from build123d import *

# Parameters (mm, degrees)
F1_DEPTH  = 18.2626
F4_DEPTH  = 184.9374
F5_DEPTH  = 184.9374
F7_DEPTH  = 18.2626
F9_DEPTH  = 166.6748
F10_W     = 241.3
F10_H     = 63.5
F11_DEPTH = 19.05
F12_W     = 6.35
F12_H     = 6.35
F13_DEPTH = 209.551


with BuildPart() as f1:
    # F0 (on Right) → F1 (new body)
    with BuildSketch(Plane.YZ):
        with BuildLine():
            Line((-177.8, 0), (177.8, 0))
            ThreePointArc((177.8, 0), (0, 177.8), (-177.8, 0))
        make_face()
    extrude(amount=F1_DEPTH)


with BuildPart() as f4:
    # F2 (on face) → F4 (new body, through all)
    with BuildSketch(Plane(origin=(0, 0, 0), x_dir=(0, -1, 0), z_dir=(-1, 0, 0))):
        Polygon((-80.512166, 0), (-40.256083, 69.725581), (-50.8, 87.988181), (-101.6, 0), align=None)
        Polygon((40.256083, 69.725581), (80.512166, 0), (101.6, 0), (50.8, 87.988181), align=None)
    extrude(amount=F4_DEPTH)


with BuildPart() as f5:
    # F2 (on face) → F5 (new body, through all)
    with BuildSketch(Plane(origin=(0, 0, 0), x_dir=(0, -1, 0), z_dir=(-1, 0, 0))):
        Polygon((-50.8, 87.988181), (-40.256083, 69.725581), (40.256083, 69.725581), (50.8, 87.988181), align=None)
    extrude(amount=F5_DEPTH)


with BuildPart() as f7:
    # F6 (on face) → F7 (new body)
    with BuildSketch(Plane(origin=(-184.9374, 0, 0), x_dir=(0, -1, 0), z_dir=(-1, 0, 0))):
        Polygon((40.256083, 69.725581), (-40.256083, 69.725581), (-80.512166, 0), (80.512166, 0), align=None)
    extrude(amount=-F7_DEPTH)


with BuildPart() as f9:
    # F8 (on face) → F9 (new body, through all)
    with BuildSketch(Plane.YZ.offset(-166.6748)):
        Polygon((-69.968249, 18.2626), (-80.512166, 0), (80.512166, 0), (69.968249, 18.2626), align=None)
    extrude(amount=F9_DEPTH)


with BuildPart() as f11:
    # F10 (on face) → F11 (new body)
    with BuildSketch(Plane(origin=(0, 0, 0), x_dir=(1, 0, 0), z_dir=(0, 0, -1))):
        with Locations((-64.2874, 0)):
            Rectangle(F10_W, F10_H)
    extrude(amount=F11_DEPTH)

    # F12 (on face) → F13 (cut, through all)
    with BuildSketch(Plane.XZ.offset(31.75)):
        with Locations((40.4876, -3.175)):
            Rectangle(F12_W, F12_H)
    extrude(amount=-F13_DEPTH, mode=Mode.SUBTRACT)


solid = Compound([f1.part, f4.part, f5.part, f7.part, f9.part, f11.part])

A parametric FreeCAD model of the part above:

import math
import FreeCAD as App
import Part
import Sketcher
from FreeCAD import Vector
Q = App.Units.Quantity


def add_polygon(sketch, points):
    """Adds a closed chain of lines whose ends are joined by coincident constraints."""
    first, n = sketch.GeometryCount, len(points)
    for a, b in zip(points, points[1:] + points[:1]):
        sketch.addGeometry(Part.LineSegment(App.Vector(*a, 0), App.Vector(*b, 0)), False)
    for i in range(n):
        sketch.addConstraint(Sketcher.Constraint("Coincident", first + i, 2, first + (i + 1) % n, 1))

doc = App.newDocument("Part")
body = doc.addObject("PartDesign::Body", "Body")

# Sketch on YZ plane
sketch1 = body.newObject("Sketcher::SketchObject", "Sketch")
sketch1.AttachmentSupport = (doc.getObject("YZ_Plane"), [""])
sketch1.MapMode = "FlatFace"
sketch1.addGeometry(Part.LineSegment(Vector(-178, 0, 0), Vector(178, 0, 0)), False)
sketch1.addGeometry(Part.ArcOfCircle(Part.Circle(Vector(0, 0, 0), Vector(0, 0, 1), 178), math.radians(0), math.radians(180)), False)
sketch1.addConstraint(Sketcher.Constraint("Coincident", 0, 1, 1, 2))
sketch1.addConstraint(Sketcher.Constraint("Coincident", 1, 1, 0, 2))
sketch1.addConstraint(Sketcher.Constraint("Horizontal", 0))
sketch1.addConstraint(Sketcher.Constraint("Coincident", 1, 3, -1, 1))
sketch1.addConstraint(Sketcher.Constraint("PointOnObject", 0, 1, -1))
sketch1.addConstraint(Sketcher.Constraint("Radius", 1, Q("7 in")))
pad1 = body.newObject("PartDesign::Pad", "Pad")
pad1.Profile = sketch1
pad1.Length = Q("0.719 in")
body2 = doc.addObject("PartDesign::Body", "Body001")
body2.AllowCompound = True

# Sketch on YZ plane
sketch2 = body2.newObject("Sketcher::SketchObject", "Sketch001")
sketch2.AttachmentSupport = (doc.getObject("YZ_Plane001"), [""])
sketch2.MapMode = "FlatFace"
add_polygon(sketch2, [(81, 0), (40, 70), (51, 88), (102, 0)])  # lines 0-3
add_polygon(sketch2, [(-40, 70), (-81, 0), (-102, 0), (-51, 88)])  # lines 4-7
sketch2.addConstraint(Sketcher.Constraint("Horizontal", 3))
sketch2.addConstraint(Sketcher.Constraint("Horizontal", 5))
sketch2.addConstraint(Sketcher.Constraint("Symmetric", 3, 2, 4, 2, -1, 1))
sketch2.addConstraint(Sketcher.Constraint("Symmetric", 2, 2, 5, 2, -2))
sketch2.addConstraint(Sketcher.Constraint("Symmetric", 1, 2, 6, 2, -2))
sketch2.addConstraint(Sketcher.Constraint("Symmetric", 0, 2, 7, 2, -2))
sketch2.addConstraint(Sketcher.Constraint("Parallel", 0, 2))
sketch2.addConstraint(Sketcher.Constraint("Parallel", 1, 4))
sketch2.addConstraint(Sketcher.Constraint("Distance", 2, Q("4 in")))
sketch2.addConstraint(Sketcher.Constraint("DistanceX", -1, 1, 1, 2, Q("2 in")))
sketch2.addConstraint(Sketcher.Constraint("DistanceX", -1, 1, 2, 2, Q("4 in")))
sketch2.addConstraint(Sketcher.Constraint("DistanceY", 0, 2, 1, 2, Q("0.719 in")))
pad2 = body2.newObject("PartDesign::Pad", "Pad001")
pad2.Profile = sketch2
pad2.Length = Q("7.281 in")
pad2.Reversed = True
body3 = doc.addObject("PartDesign::Body", "Body002")

# Sketch on YZ plane
sketch3 = body3.newObject("Sketcher::SketchObject", "Sketch002")
sketch3.AttachmentSupport = (doc.getObject("YZ_Plane002"), [""])
sketch3.MapMode = "FlatFace"
add_polygon(sketch3, [(51, 88), (40, 70), (-40, 70), (-51, 88)])  # lines 0-3
sketch3.addConstraint(Sketcher.Constraint("Horizontal", 1))
sketch3.addConstraint(Sketcher.Constraint("Horizontal", 3))
sketch3.addConstraint(Sketcher.Constraint("Equal", 0, 2))
sketch3.addConstraint(Sketcher.Constraint("DistanceX", 3, 1, 3, 2, Q("4 in")))
sketch3.addConstraint(Sketcher.Constraint("DistanceX", 2, 2, -1, 1, Q("2 in")))
sketch3.addConstraint(Sketcher.Constraint("Angle", 0, Q("-120 deg")))
sketch3.addConstraint(Sketcher.Constraint("DistanceY", 1, 2, 2, 2, Q("0.719 in")))
sketch3.addConstraint(Sketcher.Constraint("DistanceY", -1, 1, 0, 2, 69.725581))
pad3 = body3.newObject("PartDesign::Pad", "Pad002")
pad3.Profile = sketch3
pad3.Length = Q("7.281 in")
pad3.Reversed = True
body4 = doc.addObject("PartDesign::Body", "Body003")

# Sketch on YZ plane
sketch4 = body4.newObject("Sketcher::SketchObject", "Sketch003")
sketch4.AttachmentSupport = (doc.getObject("YZ_Plane003"), [""])
sketch4.MapMode = "FlatFace"
sketch4.AttachmentOffset = App.Placement(Vector(0, 0, -7.281 * 25.4), App.Rotation())
add_polygon(sketch4, [(-40, 70), (40, 70), (81, 0), (-81, 0)])  # lines 0-3
sketch4.addConstraint(Sketcher.Constraint("Horizontal", 0))
sketch4.addConstraint(Sketcher.Constraint("Horizontal", 2))
sketch4.addConstraint(Sketcher.Constraint("Symmetric", 1, 2, 2, 2, -1, 1))
sketch4.addConstraint(Sketcher.Constraint("Equal", 1, 3))
sketch4.addConstraint(Sketcher.Constraint("Angle", 1, Q("-60 deg")))
sketch4.addConstraint(Sketcher.Constraint("DistanceX", 2, 2, 2, 1, 161.024332))
sketch4.addConstraint(Sketcher.Constraint("DistanceX", 0, 1, 0, 2, 80.512166))
pad4 = body4.newObject("PartDesign::Pad", "Pad003")
pad4.Profile = sketch4
pad4.Length = Q("0.719 in")
body5 = doc.addObject("PartDesign::Body", "Body004")

# Sketch on YZ plane
sketch5 = body5.newObject("Sketcher::SketchObject", "Sketch004")
sketch5.AttachmentSupport = (doc.getObject("YZ_Plane004"), [""])
sketch5.MapMode = "FlatFace"
sketch5.AttachmentOffset = App.Placement(Vector(0, 0, -6.562 * 25.4), App.Rotation())
add_polygon(sketch5, [(-70, 18), (-81, 0), (81, 0), (70, 18)])  # lines 0-3
sketch5.addConstraint(Sketcher.Constraint("Horizontal", 1))
sketch5.addConstraint(Sketcher.Constraint("Horizontal", 3))
sketch5.addConstraint(Sketcher.Constraint("Symmetric", 0, 2, 1, 2, -1, 1))
sketch5.addConstraint(Sketcher.Constraint("Equal", 0, 2))
sketch5.addConstraint(Sketcher.Constraint("Angle", 0, Q("-120 deg")))
sketch5.addConstraint(Sketcher.Constraint("DistanceY", -1, 1, 2, 2, Q("0.719 in")))
sketch5.addConstraint(Sketcher.Constraint("DistanceX", 3, 2, 3, 1, 139.936498))
pad5 = body5.newObject("PartDesign::Pad", "Pad004")
pad5.Profile = sketch5
pad5.Length = Q("6.562 in")
body6 = doc.addObject("PartDesign::Body", "Body005")

# Sketch on XY plane
sketch6 = body6.newObject("Sketcher::SketchObject", "Sketch005")
sketch6.AttachmentSupport = (doc.getObject("XY_Plane005"), [""])
sketch6.MapMode = "FlatFace"
add_polygon(sketch6, [(-185, -32), (-185, 32), (56, 32), (56, -32)])  # lines 0-3
sketch6.addConstraint(Sketcher.Constraint("Vertical", 0))
sketch6.addConstraint(Sketcher.Constraint("Horizontal", 1))
sketch6.addConstraint(Sketcher.Constraint("Vertical", 2))
sketch6.addConstraint(Sketcher.Constraint("Horizontal", 3))
sketch6.addConstraint(Sketcher.Constraint("DistanceX", 1, 1, 1, 2, Q("9.5 in")))
sketch6.addConstraint(Sketcher.Constraint("DistanceY", 0, 1, 0, 2, Q("2.5 in")))
sketch6.addConstraint(Sketcher.Constraint("DistanceY", -1, 1, 0, 2, Q("1.25 in")))
sketch6.addConstraint(Sketcher.Constraint("DistanceX", 0, 2, -1, 1, Q("7.281 in")))
pad6 = body6.newObject("PartDesign::Pad", "Pad005")
pad6.Profile = sketch6
pad6.Length = Q("0.75 in")
pad6.Reversed = True

# Sketch on XZ plane
sketch7 = body6.newObject("Sketcher::SketchObject", "Sketch006")
sketch7.AttachmentSupport = (doc.getObject("XZ_Plane005"), [""])
sketch7.MapMode = "FlatFace"
sketch7.AttachmentOffset = App.Placement(Vector(0, 0, 1.25 * 25.4), App.Rotation())
add_polygon(sketch7, [(37, 0), (37, -6), (44, -6), (44, 0)])  # lines 0-3
sketch7.addConstraint(Sketcher.Constraint("Vertical", 0))
sketch7.addConstraint(Sketcher.Constraint("Horizontal", 1))
sketch7.addConstraint(Sketcher.Constraint("Vertical", 2))
sketch7.addConstraint(Sketcher.Constraint("Horizontal", 3))
sketch7.addConstraint(Sketcher.Constraint("PointOnObject", 2, 2, -1))
sketch7.addConstraint(Sketcher.Constraint("Equal", 3, 0))
sketch7.addConstraint(Sketcher.Constraint("DistanceX", 1, 1, 1, 2, Q("0.25 in")))
sketch7.addConstraint(Sketcher.Constraint("DistanceX", -1, 1, 0, 2, Q("1.469 in")))
pocket1 = body6.newObject("PartDesign::Pocket", "Pocket")
pocket1.Profile = sketch7
pocket1.Type = "ThroughAll"

doc.recompute()
